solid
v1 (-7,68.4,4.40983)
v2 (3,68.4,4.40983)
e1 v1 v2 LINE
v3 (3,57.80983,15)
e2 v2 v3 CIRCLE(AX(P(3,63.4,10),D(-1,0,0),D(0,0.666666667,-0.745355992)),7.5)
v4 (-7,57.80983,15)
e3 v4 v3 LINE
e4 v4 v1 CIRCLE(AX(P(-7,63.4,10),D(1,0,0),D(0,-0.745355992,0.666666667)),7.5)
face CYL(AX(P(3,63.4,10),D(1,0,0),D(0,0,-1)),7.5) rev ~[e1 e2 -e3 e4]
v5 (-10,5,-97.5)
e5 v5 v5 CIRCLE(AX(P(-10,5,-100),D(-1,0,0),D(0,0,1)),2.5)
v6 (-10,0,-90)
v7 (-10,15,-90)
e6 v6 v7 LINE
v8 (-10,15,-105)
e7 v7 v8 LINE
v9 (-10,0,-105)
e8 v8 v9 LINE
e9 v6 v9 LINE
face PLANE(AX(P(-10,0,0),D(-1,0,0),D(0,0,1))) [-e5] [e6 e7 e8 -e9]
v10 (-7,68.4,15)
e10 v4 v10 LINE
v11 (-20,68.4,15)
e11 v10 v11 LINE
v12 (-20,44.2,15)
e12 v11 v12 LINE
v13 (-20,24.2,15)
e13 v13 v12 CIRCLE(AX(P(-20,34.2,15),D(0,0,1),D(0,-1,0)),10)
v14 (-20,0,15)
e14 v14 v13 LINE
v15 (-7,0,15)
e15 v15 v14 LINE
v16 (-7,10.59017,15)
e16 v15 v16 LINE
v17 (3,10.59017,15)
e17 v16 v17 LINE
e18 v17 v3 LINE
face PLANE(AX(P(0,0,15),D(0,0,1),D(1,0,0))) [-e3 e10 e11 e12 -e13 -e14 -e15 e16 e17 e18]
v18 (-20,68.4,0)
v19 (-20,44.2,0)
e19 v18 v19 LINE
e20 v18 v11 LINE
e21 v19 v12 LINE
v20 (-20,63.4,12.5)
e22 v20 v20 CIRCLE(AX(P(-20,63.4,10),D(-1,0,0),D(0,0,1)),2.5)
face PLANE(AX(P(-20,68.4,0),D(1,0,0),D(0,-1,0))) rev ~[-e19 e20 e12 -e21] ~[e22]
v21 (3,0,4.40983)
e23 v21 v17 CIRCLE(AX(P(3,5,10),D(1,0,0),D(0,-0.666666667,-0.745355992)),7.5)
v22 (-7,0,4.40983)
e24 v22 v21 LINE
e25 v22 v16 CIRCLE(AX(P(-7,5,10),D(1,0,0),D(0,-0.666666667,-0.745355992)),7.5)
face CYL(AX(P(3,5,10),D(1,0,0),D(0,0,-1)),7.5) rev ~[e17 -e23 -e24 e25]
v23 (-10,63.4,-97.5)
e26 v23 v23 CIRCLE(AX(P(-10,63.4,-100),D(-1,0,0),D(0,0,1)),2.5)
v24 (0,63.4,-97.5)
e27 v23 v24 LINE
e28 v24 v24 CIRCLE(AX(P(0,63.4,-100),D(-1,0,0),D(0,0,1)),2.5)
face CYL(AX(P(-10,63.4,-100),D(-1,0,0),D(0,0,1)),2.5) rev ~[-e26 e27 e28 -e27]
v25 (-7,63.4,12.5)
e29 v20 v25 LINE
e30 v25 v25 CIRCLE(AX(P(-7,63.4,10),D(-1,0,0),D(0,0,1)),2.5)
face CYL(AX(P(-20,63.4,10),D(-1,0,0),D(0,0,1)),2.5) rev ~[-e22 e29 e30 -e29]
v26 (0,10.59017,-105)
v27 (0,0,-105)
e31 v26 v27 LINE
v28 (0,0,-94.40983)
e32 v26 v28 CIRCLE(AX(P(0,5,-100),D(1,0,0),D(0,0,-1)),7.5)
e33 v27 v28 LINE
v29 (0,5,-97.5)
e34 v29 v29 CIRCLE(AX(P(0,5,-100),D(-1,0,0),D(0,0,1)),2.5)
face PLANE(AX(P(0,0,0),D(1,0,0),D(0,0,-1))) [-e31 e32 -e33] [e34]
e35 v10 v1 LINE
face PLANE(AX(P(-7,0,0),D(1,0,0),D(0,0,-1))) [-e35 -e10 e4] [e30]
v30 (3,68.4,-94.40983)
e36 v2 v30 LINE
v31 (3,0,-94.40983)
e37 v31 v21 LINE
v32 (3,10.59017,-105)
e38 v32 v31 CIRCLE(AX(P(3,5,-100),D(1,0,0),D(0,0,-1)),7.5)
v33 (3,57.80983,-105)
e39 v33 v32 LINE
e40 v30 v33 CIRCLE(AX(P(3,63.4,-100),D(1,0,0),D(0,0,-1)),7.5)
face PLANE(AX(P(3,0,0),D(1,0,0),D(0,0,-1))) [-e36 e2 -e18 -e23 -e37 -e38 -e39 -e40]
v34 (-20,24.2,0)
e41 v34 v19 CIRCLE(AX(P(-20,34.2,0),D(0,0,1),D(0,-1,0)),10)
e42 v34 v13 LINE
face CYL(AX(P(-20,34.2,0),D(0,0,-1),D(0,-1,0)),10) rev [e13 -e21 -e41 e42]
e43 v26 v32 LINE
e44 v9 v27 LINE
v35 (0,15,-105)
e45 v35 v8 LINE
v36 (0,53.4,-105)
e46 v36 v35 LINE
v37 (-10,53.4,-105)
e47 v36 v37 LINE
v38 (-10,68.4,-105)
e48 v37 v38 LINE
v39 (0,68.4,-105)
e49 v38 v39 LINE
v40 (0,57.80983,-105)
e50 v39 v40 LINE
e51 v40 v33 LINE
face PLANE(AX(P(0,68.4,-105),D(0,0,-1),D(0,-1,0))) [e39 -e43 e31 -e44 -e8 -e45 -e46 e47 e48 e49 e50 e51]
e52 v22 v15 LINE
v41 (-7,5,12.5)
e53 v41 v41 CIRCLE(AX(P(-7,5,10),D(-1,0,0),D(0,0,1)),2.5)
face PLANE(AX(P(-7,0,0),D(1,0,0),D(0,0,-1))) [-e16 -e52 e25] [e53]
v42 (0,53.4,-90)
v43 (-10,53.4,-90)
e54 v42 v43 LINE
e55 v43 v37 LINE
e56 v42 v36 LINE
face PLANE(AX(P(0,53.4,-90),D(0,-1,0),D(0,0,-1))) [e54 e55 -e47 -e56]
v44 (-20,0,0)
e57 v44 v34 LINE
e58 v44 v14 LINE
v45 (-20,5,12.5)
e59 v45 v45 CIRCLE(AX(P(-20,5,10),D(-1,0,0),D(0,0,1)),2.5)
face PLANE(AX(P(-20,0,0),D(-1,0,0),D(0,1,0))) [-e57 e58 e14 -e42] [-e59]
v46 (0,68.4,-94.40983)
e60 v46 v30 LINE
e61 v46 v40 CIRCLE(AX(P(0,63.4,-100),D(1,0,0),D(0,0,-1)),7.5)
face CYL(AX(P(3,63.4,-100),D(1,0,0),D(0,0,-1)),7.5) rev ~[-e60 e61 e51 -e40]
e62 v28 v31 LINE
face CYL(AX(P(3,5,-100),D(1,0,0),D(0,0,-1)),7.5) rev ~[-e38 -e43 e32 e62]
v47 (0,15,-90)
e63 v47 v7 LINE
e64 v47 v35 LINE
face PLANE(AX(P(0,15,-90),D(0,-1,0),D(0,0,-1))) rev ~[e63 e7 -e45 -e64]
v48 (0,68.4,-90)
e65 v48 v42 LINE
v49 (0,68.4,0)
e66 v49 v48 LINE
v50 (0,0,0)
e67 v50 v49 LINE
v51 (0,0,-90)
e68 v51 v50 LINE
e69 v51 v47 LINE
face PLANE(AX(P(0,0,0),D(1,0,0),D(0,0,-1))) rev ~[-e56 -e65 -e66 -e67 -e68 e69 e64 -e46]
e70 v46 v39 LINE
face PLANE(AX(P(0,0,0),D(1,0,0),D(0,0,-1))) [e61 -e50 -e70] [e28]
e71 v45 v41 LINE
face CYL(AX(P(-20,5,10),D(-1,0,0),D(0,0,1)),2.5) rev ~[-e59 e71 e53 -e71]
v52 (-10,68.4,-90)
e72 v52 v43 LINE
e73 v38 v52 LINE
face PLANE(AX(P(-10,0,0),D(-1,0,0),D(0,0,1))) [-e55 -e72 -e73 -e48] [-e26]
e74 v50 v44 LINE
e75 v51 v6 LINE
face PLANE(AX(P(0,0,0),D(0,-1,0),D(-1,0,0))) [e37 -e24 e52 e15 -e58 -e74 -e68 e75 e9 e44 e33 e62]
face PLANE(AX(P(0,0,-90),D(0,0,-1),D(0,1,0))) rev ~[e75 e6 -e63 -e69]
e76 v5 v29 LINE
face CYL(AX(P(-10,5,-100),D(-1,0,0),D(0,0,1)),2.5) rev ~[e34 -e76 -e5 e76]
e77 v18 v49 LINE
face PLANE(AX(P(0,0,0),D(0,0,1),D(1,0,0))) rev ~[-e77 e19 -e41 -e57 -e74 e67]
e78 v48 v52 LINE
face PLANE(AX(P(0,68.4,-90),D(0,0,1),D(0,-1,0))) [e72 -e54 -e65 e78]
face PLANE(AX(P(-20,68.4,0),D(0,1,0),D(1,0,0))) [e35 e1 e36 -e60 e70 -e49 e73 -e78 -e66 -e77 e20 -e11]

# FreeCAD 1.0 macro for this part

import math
import FreeCAD as App
import Part
import Sketcher
Q = App.Units.Quantity


def add_polygon(sketch, points):
    """Adds a closed chain of lines whose ends are joined by coincident constraints."""
    first, n = sketch.GeometryCount, len(points)
    for a, b in zip(points, points[1:] + points[:1]):
        sketch.addGeometry(Part.LineSegment(App.Vector(*a, 0), App.Vector(*b, 0)), False)
    for i in range(n):
        sketch.addConstraint(Sketcher.Constraint("Coincident", first + i, 2, first + (i + 1) % n, 1))

doc = App.newDocument("Part")
body = doc.addObject("PartDesign::Body", "Body")

sketch1 = doc.addObject("Sketcher::SketchObject", "Sketch")
body.addObject(sketch1)
sketch1.AttachmentSupport = (doc.XY_Plane, [""])
sketch1.MapMode = "FlatFace"
sketch1.addGeometry(Part.LineSegment(App.Vector(-20, 0, 0), App.Vector(0, 0, 0)), False)
sketch1.addGeometry(Part.LineSegment(App.Vector(0, 0, 0), App.Vector(0, 68, 0)), False)
sketch1.addGeometry(Part.LineSegment(App.Vector(0, 68, 0), App.Vector(-20, 68, 0)), False)
sketch1.addGeometry(Part.LineSegment(App.Vector(-20, 68, 0), App.Vector(-20, 44, 0)), False)
sketch1.addGeometry(Part.ArcOfCircle(Part.Circle(App.Vector(-20, 34, 0), App.Vector(0, 0, 1), 10), math.radians(-90), math.radians(90)), False)
sketch1.addGeometry(Part.LineSegment(App.Vector(-20, 24, 0), App.Vector(-20, 0, 0)), False)
sketch1.addConstraint(Sketcher.Constraint("Coincident", 0, 2, 1, 1))
sketch1.addConstraint(Sketcher.Constraint("Coincident", 1, 2, 2, 1))
sketch1.addConstraint(Sketcher.Constraint("Coincident", 2, 2, 3, 1))
sketch1.addConstraint(Sketcher.Constraint("Coincident", 3, 2, 4, 2))
sketch1.addConstraint(Sketcher.Constraint("Coincident", 4, 1, 5, 1))
sketch1.addConstraint(Sketcher.Constraint("Coincident", 5, 2, 0, 1))
sketch1.addConstraint(Sketcher.Constraint("Horizontal", 0))
sketch1.addConstraint(Sketcher.Constraint("Vertical", 1))
sketch1.addConstraint(Sketcher.Constraint("Horizontal", 2))
sketch1.addConstraint(Sketcher.Constraint("Vertical", 3))
sketch1.addConstraint(Sketcher.Constraint("Vertical", 5))
sketch1.addConstraint(Sketcher.Constraint("Coincident", 0, 2, -1, 1))
sketch1.addConstraint(Sketcher.Constraint("Vertical", 4, 3, 2, 2))
sketch1.addConstraint(Sketcher.Constraint("Vertical", 3, 2, 4, 1))
sketch1.addConstraint(Sketcher.Constraint("Equal", 3, 5))
sketch1.addConstraint(Sketcher.Constraint("Radius", 4, Q("10 mm")))
sketch1.addConstraint(Sketcher.Constraint("DistanceX", 0, 1, 0, 2, Q("20 mm")))
sketch1.addConstraint(Sketcher.Constraint("DistanceY", 1, 1, 1, 2, Q("68.4 mm")))
pad1 = doc.addObject("PartDesign::Pad", "Pad")
body.addObject(pad1)
pad1.Profile = sketch1
pad1.Length = 15

sketch2 = doc.addObject("Sketcher::SketchObject", "Sketch001")
body.addObject(sketch2)
sketch2.AttachmentSupport = (doc.YZ_Plane, [""])
sketch2.MapMode = "FlatFace"
add_polygon(sketch2, [(68, -105), (68, 15), (0, 15), (0, -105)])
sketch2.addConstraint(Sketcher.Constraint("Vertical", 0))
sketch2.addConstraint(Sketcher.Constraint("Horizontal", 1))
sketch2.addConstraint(Sketcher.Constraint("Vertical", 2))
sketch2.addConstraint(Sketcher.Constraint("Horizontal", 3))
sketch2.addConstraint(Sketcher.Constraint("PointOnObject", 1, 2, -2))
sketch2.addConstraint(Sketcher.Constraint("DistanceY", 0, 1, 0, 2, Q("120 mm")))
sketch2.addConstraint(Sketcher.Constraint("DistanceX", 1, 2, 1, 1, Q("68.4 mm")))
sketch2.addConstraint(Sketcher.Constraint("DistanceY", -1, 1, 0, 2, Q("15 mm")))
pad2 = doc.addObject("PartDesign::Pad", "Pad001")
body.addObject(pad2)
pad2.Profile = sketch2
pad2.Length = 3

sketch3 = doc.addObject("Sketcher::SketchObject", "Sketch002")
body.addObject(sketch3)
sketch3.AttachmentSupport = (doc.YZ_Plane, [""])
sketch3.MapMode = "FlatFace"
sketch3.AttachmentOffset = App.Placement(App.Vector(0, 0, -20), App.Rotation())
sketch3.addGeometry(Part.Circle(App.Vector(5, 10, 0), App.Vector(0, 0, 1), 2.5), False)
sketch3.addGeometry(Part.Circle(App.Vector(63.4, 10, 0), App.Vector(0, 0, 1), 2.5), False)
sketch3.addConstraint(Sketcher.Constraint("Equal", 0, 1))
sketch3.addConstraint(Sketcher.Constraint("Horizontal", 0, 3, 1, 3))
sketch3.addConstraint(Sketcher.Constraint("Diameter", 0, Q("5 mm")))
sketch3.addConstraint(Sketcher.Constraint("DistanceX", -1, 1, 0, 3, Q("5 mm")))
sketch3.addConstraint(Sketcher.Constraint("DistanceY", -1, 1, 0, 3, Q("10 mm")))
sketch3.addConstraint(Sketcher.Constraint("DistanceX", -1, 1, 1, 3, Q("63.4 mm")))
pocket1 = doc.addObject("PartDesign::Pocket", "Pocket")
body.addObject(pocket1)
pocket1.Profile = sketch3
pocket1.Type = "ThroughAll"
pocket1.Reversed = True

sketch4 = doc.addObject("Sketcher::SketchObject", "Sketch003")
body.addObject(sketch4)
sketch4.AttachmentSupport = (doc.YZ_Plane, [""])
sketch4.MapMode = "FlatFace"
sketch4.AttachmentOffset = App.Placement(App.Vector(0, 0, 3), App.Rotation())
sketch4.addGeometry(Part.Circle(App.Vector(63, 10, 0), App.Vector(0, 0, 1), 8), False)
sketch4.addGeometry(Part.Circle(App.Vector(5, 10, 0), App.Vector(0, 0, 1), 8), False)
sketch4.addConstraint(Sketcher.Constraint("Equal", 0, 1))
sketch4.addConstraint(Sketcher.Constraint("Horizontal", 0, 3, 1, 3))
sketch4.addConstraint(Sketcher.Constraint("Diameter", 0, Q("15 mm")))
sketch4.addConstraint(Sketcher.Constraint("DistanceY", -1, 1, 0, 3, Q("10 mm")))
sketch4.addConstraint(Sketcher.Constraint("DistanceX", -1, 1, 1, 3, Q("5 mm")))
sketch4.addConstraint(Sketcher.Constraint("DistanceX", -1, 1, 0, 3, Q("63.4 mm")))
pocket2 = doc.addObject("PartDesign::Pocket", "Pocket001")
body.addObject(pocket2)
pocket2.Profile = sketch4
pocket2.Length = 10

sketch5 = doc.addObject("Sketcher::SketchObject", "Sketch004")
body.addObject(sketch5)
sketch5.AttachmentSupport = (doc.YZ_Plane, [""])
sketch5.MapMode = "FlatFace"
add_polygon(sketch5, [(68, -90), (68, -105), (53, -105), (53, -90)])
add_polygon(sketch5, [(0, -105), (0, -90), (15, -90), (15, -105)])
sketch5.addConstraint(Sketcher.Constraint("Vertical", 0))
sketch5.addConstraint(Sketcher.Constraint("Horizontal", 1))
sketch5.addConstraint(Sketcher.Constraint("Vertical", 2))
sketch5.addConstraint(Sketcher.Constraint("Horizontal", 3))
sketch5.addConstraint(Sketcher.Constraint("Vertical", 4))
sketch5.addConstraint(Sketcher.Constraint("Horizontal", 5))
sketch5.addConstraint(Sketcher.Constraint("Vertical", 6))
sketch5.addConstraint(Sketcher.Constraint("Horizontal", 7))
sketch5.addConstraint(Sketcher.Constraint("PointOnObject", 4, 2, -2))
sketch5.addConstraint(Sketcher.Constraint("Horizontal", 3, 2, 4, 2))
sketch5.addConstraint(Sketcher.Constraint("Horizontal", 1, 2, 6, 2))
sketch5.addConstraint(Sketcher.Constraint("Equal", 3, 5))
sketch5.addConstraint(Sketcher.Constraint("Equal", 7, 0))
sketch5.addConstraint(Sketcher.Constraint("DistanceX", 1, 2, 1, 1, Q("15 mm")))
sketch5.addConstraint(Sketcher.Constraint("DistanceY", 0, 2, -1, 1, Q("105 mm")))
sketch5.addConstraint(Sketcher.Constraint("DistanceX", -1, 1, 0, 2, Q("68.4 mm")))
pad3 = doc.addObject("PartDesign::Pad", "Pad002")
body.addObject(pad3)
pad3.Profile = sketch5
pad3.Length = 10
pad3.Reversed = True

sketch6 = doc.addObject("Sketcher::SketchObject", "Sketch005")
body.addObject(sketch6)
sketch6.AttachmentSupport = (doc.YZ_Plane, [""])
sketch6.MapMode = "FlatFace"
sketch6.AttachmentOffset = App.Placement(App.Vector(0, 0, -10), App.Rotation())
sketch6.addGeometry(Part.Circle(App.Vector(63.4, -100, 0), App.Vector(0, 0, 1), 2.5), False)
sketch6.addGeometry(Part.Circle(App.Vector(5, -100, 0), App.Vector(0, 0, 1), 2.5), False)
sketch6.addConstraint(Sketcher.Constraint("Equal", 0, 1))
sketch6.addConstraint(Sketcher.Constraint("Horizontal", 0, 3, 1, 3))
sketch6.addConstraint(Sketcher.Constraint("Diameter", 0, Q("5 mm")))
sketch6.addConstraint(Sketcher.Constraint("DistanceX", -1, 1, 1, 3, Q("5 mm")))
sketch6.addConstraint(Sketcher.Constraint("DistanceY", 0, 3, -1, 1, Q("100 mm")))
sketch6.addConstraint(Sketcher.Constraint("DistanceX", -1, 1, 0, 3, Q("63.4 mm")))
pocket3 = doc.addObject("PartDesign::Pocket", "Pocket002")
body.addObject(pocket3)
pocket3.Profile = sketch6
pocket3.Type = "ThroughAll"
pocket3.Reversed = True

sketch7 = doc.addObject("Sketcher::SketchObject", "Sketch006")
body.addObject(sketch7)
sketch7.AttachmentSupport = (doc.YZ_Plane, [""])
sketch7.MapMode = "FlatFace"
sketch7.AttachmentOffset = App.Placement(App.Vector(0, 0, 3), App.Rotation())
sketch7.addGeometry(Part.Circle(App.Vector(5, -100, 0), App.Vector(0, 0, 1), 7.5), False)
sketch7.addGeometry(Part.Circle(App.Vector(5, -100, 0), App.Vector(0, 0, 1), 2.5), False)
sketch7.addGeometry(Part.Circle(App.Vector(63.4, -100, 0), App.Vector(0, 0, 1), 7.5), False)
sketch7.addGeometry(Part.Circle(App.Vector(63.4, -100, 0), App.Vector(0, 0, 1), 2.5), False)
sketch7.addConstraint(Sketcher.Constraint("Coincident", 1, 3, 0, 3))
sketch7.addConstraint(Sketcher.Constraint("Coincident", 3, 3, 2, 3))
sketch7.addConstraint(Sketcher.Constraint("Equal", 0, 2))
sketch7.addConstraint(Sketcher.Constraint("Equal", 1, 3))
sketch7.addConstraint(Sketcher.Constraint("Horizontal", 1, 3, 2, 3))
sketch7.addConstraint(Sketcher.Constraint("Diameter", 0, Q("15 mm")))
sketch7.addConstraint(Sketcher.Constraint("Diameter", 1, Q("5 mm")))
sketch7.addConstraint(Sketcher.Constraint("DistanceX", -1, 1, 0, 3, Q("5 mm")))
sketch7.addConstraint(Sketcher.Constraint("DistanceY", 0, 3, -1, 1, Q("100 mm")))
sketch7.addConstraint(Sketcher.Constraint("DistanceX", -1, 1, 2, 3, Q("63.4 mm")))
pocket4 = doc.addObject("PartDesign::Pocket", "Pocket003")
body.addObject(pocket4)
pocket4.Profile = sketch7
pocket4.Length = 3

doc.recompute()
